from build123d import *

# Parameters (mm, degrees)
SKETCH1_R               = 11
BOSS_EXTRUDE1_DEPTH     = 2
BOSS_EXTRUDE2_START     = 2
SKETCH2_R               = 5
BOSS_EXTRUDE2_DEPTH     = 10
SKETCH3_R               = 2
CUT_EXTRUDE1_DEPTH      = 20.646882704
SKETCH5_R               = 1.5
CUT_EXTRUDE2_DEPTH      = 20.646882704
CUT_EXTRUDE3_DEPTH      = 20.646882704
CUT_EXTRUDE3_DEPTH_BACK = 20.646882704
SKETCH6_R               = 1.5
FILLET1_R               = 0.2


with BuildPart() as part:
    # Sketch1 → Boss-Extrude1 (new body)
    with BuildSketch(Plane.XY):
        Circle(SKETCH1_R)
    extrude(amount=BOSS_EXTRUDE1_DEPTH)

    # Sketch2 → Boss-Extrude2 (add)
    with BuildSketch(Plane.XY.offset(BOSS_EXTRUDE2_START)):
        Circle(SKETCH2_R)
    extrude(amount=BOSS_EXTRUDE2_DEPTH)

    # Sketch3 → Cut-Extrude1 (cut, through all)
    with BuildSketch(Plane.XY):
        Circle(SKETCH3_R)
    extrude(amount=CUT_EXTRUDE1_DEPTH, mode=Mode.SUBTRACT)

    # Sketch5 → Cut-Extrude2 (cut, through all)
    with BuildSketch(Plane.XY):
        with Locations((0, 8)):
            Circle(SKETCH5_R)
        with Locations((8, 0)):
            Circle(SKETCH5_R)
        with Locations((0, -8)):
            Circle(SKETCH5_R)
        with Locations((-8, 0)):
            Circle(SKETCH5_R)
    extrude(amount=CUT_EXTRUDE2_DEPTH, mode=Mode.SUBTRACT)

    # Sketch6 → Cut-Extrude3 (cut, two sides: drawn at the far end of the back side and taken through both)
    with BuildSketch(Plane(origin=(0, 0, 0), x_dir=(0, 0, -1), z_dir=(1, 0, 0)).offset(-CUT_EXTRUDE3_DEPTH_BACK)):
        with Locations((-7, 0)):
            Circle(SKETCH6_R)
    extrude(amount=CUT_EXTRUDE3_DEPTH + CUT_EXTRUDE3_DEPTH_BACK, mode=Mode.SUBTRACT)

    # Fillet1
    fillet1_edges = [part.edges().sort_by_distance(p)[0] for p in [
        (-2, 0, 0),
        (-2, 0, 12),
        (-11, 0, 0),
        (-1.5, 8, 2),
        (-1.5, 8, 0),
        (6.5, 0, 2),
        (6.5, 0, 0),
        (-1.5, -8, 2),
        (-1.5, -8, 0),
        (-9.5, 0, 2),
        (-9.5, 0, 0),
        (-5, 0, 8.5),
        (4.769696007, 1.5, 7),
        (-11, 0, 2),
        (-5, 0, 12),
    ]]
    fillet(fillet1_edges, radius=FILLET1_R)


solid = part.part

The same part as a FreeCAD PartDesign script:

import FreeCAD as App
import Part
import Sketcher
from FreeCAD import Vector


def edges_at(feature, points):
    """Names of the edges that pass closest to the given points."""
    edges = feature.Shape.Edges
    near = lambda p: min(range(len(edges)), key=lambda i: edges[i].distToShape(Part.Vertex(*p))[0])
    return sorted({f"Edge{near(p) + 1}" for p in points})

doc = App.newDocument("Part")
params = doc.addObject("Spreadsheet::Sheet", "Params")
for row, (alias, value) in enumerate([
    ("sketch1_diameter", "22 mm"),
    ("pad1_length", "2 mm"),
    ("sketch2_diameter", "10 mm"),
    ("pad2_length", "10 mm"),
    ("sketch3_diameter", "4 mm"),
    ("sketch4_diameter", "3 mm"),
    ("sketch5_diameter", "3 mm"),
    ("fillet_radius", "0.2 mm"),
], start=1):
    params.set(f"A{row}", alias)
    params.set(f"B{row}", "=" + value)
    params.setAlias(f"B{row}", alias)

body = doc.addObject("PartDesign::Body", "Body")

# Sketch on XY plane
sketch1 = doc.addObject("Sketcher::SketchObject", "Sketch")
body.addObject(sketch1)
sketch1.AttachmentSupport = (doc.XY_Plane, [""])
sketch1.MapMode = "FlatFace"
sketch1.addGeometry(Part.Circle(Vector(0, 0, 0), Vector(0, 0, 1), 11), False)
sketch1.addConstraint([
    Sketcher.Constraint("Coincident", 0, 3, -1, 1),
    Sketcher.Constraint("Diameter", 0, 22.0),
])
sketch1.setExpression("Constraints[1]", "Params.sketch1_diameter")
pad1 = doc.addObject("PartDesign::Pad", "Pad")
body.addObject(pad1)
pad1.Profile = sketch1
pad1.setExpression("Length", "Params.pad1_length")

# Sketch on XY plane
sketch2 = doc.addObject("Sketcher::SketchObject", "Sketch001")
body.addObject(sketch2)
sketch2.AttachmentSupport = (doc.XY_Plane, [""])
sketch2.MapMode = "FlatFace"
sketch2.AttachmentOffset = App.Placement(Vector(0, 0, 2), App.Rotation())
sketch2.addGeometry(Part.Circle(Vector(0, 0, 0), Vector(0, 0, 1), 5), False)
sketch2.addConstraint([
    Sketcher.Constraint("Coincident", 0, 3, -1, 1),
    Sketcher.Constraint("Diameter", 0, 10.0),
])
sketch2.setExpression("Constraints[1]", "Params.sketch2_diameter")
pad2 = doc.addObject("PartDesign::Pad", "Pad001")
body.addObject(pad2)
pad2.Profile = sketch2
pad2.setExpression("Length", "Params.pad2_length")

# Sketch on XY plane
sketch3 = doc.addObject("Sketcher::SketchObject", "Sketch002")
body.addObject(sketch3)
sketch3.AttachmentSupport = (doc.XY_Plane, [""])
sketch3.MapMode = "FlatFace"
sketch3.addGeometry(Part.Circle(Vector(0, 0, 0), Vector(0, 0, 1), 2), False)
sketch3.addConstraint([
    Sketcher.Constraint("Coincident", 0, 3, -1, 1),
    Sketcher.Constraint("Diameter", 0, 4.0),
])
sketch3.setExpression("Constraints[1]", "Params.sketch3_diameter")
pocket1 = doc.addObject("PartDesign::Pocket", "Pocket")
body.addObject(pocket1)
pocket1.Profile = sketch3
pocket1.Type = "ThroughAll"
pocket1.Reversed = True

# Sketch on XY plane
sketch4 = doc.addObject("Sketcher::SketchObject", "Sketch003")
body.addObject(sketch4)
sketch4.AttachmentSupport = (doc.XY_Plane, [""])
sketch4.MapMode = "FlatFace"
sketch4.addGeometry([
    Part.Circle(Vector(0, 8, 0), Vector(0, 0, 1), 1.5),
    Part.Circle(Vector(8, 0, 0), Vector(0, 0, 1), 1.5),
    Part.Circle(Vector(0, -8, 0), Vector(0, 0, 1), 1.5),
    Part.Circle(Vector(-8, 0, 0), Vector(0, 0, 1), 1.5),
], False)
sketch4.addConstraint([
    Sketcher.Constraint("Equal", 0, 1),
    Sketcher.Constraint("Equal", 1, 2),
    Sketcher.Constraint("Equal", 2, 3),
    Sketcher.Constraint("Symmetric", 0, 3, 2, 3, -1, 1),
    Sketcher.Constraint("Symmetric", 1, 3, 3, 3, -1, 1),
    Sketcher.Constraint("PointOnObject", 0, 3, -2),
    Sketcher.Constraint("PointOnObject", 1, 3, -1),
    Sketcher.Constraint("Diameter", 0, 3.0),
    Sketcher.Constraint("DistanceY", -1, 1, 0, 3, 8.0),
    Sketcher.Constraint("DistanceX", -1, 1, 1, 3, 8.0),
])
sketch4.setExpression("Constraints[7]", "Params.sketch4_diameter")
pocket2 = doc.addObject("PartDesign::Pocket", "Pocket001")
body.addObject(pocket2)
pocket2.Profile = sketch4
pocket2.Type = "ThroughAll"
pocket2.Reversed = True

# Sketch on YZ plane
sketch5 = doc.addObject("Sketcher::SketchObject", "Sketch004")
body.addObject(sketch5)
sketch5.AttachmentSupport = (doc.YZ_Plane, [""])
sketch5.MapMode = "FlatFace"
sketch5.addGeometry(Part.Circle(Vector(0, 7, 0), Vector(0, 0, 1), 1.5), False)
sketch5.addConstraint([
    Sketcher.Constraint("PointOnObject", 0, 3, -2),
    Sketcher.Constraint("Diameter", 0, 3.0),
    Sketcher.Constraint("DistanceY", -1, 1, 0, 3, 7.0),
])
sketch5.setExpression("Constraints[1]", "Params.sketch5_diameter")
pocket3 = doc.addObject("PartDesign::Pocket", "Pocket002")
body.addObject(pocket3)
pocket3.Profile = sketch5
pocket3.Type = "ThroughAll"
pocket3.Midplane = True
doc.recompute()

fillet = doc.addObject("PartDesign::Fillet", "Fillet")
body.addObject(fillet)
fillet.Base = (pocket3, edges_at(pocket3, [
    (-2, 0, 0),
    (-2, 0, 12),
    (-11, 0, 0),
    (-1.5, 8, 2),
    (-1.5, 8, 0),
    (6.5, 0, 2),
    (6.5, 0, 0),
    (-1.5, -8, 2),
    (-1.5, -8, 0),
    (-9.5, 0, 2),
    (-9.5, 0, 0),
    (-5, 0, 8.5),
    (4.77, 1.5, 7),
    (-11, 0, 2),
    (-5, 0, 12),
]))
fillet.setExpression("Radius", "Params.fillet_radius")

doc.recompute()
